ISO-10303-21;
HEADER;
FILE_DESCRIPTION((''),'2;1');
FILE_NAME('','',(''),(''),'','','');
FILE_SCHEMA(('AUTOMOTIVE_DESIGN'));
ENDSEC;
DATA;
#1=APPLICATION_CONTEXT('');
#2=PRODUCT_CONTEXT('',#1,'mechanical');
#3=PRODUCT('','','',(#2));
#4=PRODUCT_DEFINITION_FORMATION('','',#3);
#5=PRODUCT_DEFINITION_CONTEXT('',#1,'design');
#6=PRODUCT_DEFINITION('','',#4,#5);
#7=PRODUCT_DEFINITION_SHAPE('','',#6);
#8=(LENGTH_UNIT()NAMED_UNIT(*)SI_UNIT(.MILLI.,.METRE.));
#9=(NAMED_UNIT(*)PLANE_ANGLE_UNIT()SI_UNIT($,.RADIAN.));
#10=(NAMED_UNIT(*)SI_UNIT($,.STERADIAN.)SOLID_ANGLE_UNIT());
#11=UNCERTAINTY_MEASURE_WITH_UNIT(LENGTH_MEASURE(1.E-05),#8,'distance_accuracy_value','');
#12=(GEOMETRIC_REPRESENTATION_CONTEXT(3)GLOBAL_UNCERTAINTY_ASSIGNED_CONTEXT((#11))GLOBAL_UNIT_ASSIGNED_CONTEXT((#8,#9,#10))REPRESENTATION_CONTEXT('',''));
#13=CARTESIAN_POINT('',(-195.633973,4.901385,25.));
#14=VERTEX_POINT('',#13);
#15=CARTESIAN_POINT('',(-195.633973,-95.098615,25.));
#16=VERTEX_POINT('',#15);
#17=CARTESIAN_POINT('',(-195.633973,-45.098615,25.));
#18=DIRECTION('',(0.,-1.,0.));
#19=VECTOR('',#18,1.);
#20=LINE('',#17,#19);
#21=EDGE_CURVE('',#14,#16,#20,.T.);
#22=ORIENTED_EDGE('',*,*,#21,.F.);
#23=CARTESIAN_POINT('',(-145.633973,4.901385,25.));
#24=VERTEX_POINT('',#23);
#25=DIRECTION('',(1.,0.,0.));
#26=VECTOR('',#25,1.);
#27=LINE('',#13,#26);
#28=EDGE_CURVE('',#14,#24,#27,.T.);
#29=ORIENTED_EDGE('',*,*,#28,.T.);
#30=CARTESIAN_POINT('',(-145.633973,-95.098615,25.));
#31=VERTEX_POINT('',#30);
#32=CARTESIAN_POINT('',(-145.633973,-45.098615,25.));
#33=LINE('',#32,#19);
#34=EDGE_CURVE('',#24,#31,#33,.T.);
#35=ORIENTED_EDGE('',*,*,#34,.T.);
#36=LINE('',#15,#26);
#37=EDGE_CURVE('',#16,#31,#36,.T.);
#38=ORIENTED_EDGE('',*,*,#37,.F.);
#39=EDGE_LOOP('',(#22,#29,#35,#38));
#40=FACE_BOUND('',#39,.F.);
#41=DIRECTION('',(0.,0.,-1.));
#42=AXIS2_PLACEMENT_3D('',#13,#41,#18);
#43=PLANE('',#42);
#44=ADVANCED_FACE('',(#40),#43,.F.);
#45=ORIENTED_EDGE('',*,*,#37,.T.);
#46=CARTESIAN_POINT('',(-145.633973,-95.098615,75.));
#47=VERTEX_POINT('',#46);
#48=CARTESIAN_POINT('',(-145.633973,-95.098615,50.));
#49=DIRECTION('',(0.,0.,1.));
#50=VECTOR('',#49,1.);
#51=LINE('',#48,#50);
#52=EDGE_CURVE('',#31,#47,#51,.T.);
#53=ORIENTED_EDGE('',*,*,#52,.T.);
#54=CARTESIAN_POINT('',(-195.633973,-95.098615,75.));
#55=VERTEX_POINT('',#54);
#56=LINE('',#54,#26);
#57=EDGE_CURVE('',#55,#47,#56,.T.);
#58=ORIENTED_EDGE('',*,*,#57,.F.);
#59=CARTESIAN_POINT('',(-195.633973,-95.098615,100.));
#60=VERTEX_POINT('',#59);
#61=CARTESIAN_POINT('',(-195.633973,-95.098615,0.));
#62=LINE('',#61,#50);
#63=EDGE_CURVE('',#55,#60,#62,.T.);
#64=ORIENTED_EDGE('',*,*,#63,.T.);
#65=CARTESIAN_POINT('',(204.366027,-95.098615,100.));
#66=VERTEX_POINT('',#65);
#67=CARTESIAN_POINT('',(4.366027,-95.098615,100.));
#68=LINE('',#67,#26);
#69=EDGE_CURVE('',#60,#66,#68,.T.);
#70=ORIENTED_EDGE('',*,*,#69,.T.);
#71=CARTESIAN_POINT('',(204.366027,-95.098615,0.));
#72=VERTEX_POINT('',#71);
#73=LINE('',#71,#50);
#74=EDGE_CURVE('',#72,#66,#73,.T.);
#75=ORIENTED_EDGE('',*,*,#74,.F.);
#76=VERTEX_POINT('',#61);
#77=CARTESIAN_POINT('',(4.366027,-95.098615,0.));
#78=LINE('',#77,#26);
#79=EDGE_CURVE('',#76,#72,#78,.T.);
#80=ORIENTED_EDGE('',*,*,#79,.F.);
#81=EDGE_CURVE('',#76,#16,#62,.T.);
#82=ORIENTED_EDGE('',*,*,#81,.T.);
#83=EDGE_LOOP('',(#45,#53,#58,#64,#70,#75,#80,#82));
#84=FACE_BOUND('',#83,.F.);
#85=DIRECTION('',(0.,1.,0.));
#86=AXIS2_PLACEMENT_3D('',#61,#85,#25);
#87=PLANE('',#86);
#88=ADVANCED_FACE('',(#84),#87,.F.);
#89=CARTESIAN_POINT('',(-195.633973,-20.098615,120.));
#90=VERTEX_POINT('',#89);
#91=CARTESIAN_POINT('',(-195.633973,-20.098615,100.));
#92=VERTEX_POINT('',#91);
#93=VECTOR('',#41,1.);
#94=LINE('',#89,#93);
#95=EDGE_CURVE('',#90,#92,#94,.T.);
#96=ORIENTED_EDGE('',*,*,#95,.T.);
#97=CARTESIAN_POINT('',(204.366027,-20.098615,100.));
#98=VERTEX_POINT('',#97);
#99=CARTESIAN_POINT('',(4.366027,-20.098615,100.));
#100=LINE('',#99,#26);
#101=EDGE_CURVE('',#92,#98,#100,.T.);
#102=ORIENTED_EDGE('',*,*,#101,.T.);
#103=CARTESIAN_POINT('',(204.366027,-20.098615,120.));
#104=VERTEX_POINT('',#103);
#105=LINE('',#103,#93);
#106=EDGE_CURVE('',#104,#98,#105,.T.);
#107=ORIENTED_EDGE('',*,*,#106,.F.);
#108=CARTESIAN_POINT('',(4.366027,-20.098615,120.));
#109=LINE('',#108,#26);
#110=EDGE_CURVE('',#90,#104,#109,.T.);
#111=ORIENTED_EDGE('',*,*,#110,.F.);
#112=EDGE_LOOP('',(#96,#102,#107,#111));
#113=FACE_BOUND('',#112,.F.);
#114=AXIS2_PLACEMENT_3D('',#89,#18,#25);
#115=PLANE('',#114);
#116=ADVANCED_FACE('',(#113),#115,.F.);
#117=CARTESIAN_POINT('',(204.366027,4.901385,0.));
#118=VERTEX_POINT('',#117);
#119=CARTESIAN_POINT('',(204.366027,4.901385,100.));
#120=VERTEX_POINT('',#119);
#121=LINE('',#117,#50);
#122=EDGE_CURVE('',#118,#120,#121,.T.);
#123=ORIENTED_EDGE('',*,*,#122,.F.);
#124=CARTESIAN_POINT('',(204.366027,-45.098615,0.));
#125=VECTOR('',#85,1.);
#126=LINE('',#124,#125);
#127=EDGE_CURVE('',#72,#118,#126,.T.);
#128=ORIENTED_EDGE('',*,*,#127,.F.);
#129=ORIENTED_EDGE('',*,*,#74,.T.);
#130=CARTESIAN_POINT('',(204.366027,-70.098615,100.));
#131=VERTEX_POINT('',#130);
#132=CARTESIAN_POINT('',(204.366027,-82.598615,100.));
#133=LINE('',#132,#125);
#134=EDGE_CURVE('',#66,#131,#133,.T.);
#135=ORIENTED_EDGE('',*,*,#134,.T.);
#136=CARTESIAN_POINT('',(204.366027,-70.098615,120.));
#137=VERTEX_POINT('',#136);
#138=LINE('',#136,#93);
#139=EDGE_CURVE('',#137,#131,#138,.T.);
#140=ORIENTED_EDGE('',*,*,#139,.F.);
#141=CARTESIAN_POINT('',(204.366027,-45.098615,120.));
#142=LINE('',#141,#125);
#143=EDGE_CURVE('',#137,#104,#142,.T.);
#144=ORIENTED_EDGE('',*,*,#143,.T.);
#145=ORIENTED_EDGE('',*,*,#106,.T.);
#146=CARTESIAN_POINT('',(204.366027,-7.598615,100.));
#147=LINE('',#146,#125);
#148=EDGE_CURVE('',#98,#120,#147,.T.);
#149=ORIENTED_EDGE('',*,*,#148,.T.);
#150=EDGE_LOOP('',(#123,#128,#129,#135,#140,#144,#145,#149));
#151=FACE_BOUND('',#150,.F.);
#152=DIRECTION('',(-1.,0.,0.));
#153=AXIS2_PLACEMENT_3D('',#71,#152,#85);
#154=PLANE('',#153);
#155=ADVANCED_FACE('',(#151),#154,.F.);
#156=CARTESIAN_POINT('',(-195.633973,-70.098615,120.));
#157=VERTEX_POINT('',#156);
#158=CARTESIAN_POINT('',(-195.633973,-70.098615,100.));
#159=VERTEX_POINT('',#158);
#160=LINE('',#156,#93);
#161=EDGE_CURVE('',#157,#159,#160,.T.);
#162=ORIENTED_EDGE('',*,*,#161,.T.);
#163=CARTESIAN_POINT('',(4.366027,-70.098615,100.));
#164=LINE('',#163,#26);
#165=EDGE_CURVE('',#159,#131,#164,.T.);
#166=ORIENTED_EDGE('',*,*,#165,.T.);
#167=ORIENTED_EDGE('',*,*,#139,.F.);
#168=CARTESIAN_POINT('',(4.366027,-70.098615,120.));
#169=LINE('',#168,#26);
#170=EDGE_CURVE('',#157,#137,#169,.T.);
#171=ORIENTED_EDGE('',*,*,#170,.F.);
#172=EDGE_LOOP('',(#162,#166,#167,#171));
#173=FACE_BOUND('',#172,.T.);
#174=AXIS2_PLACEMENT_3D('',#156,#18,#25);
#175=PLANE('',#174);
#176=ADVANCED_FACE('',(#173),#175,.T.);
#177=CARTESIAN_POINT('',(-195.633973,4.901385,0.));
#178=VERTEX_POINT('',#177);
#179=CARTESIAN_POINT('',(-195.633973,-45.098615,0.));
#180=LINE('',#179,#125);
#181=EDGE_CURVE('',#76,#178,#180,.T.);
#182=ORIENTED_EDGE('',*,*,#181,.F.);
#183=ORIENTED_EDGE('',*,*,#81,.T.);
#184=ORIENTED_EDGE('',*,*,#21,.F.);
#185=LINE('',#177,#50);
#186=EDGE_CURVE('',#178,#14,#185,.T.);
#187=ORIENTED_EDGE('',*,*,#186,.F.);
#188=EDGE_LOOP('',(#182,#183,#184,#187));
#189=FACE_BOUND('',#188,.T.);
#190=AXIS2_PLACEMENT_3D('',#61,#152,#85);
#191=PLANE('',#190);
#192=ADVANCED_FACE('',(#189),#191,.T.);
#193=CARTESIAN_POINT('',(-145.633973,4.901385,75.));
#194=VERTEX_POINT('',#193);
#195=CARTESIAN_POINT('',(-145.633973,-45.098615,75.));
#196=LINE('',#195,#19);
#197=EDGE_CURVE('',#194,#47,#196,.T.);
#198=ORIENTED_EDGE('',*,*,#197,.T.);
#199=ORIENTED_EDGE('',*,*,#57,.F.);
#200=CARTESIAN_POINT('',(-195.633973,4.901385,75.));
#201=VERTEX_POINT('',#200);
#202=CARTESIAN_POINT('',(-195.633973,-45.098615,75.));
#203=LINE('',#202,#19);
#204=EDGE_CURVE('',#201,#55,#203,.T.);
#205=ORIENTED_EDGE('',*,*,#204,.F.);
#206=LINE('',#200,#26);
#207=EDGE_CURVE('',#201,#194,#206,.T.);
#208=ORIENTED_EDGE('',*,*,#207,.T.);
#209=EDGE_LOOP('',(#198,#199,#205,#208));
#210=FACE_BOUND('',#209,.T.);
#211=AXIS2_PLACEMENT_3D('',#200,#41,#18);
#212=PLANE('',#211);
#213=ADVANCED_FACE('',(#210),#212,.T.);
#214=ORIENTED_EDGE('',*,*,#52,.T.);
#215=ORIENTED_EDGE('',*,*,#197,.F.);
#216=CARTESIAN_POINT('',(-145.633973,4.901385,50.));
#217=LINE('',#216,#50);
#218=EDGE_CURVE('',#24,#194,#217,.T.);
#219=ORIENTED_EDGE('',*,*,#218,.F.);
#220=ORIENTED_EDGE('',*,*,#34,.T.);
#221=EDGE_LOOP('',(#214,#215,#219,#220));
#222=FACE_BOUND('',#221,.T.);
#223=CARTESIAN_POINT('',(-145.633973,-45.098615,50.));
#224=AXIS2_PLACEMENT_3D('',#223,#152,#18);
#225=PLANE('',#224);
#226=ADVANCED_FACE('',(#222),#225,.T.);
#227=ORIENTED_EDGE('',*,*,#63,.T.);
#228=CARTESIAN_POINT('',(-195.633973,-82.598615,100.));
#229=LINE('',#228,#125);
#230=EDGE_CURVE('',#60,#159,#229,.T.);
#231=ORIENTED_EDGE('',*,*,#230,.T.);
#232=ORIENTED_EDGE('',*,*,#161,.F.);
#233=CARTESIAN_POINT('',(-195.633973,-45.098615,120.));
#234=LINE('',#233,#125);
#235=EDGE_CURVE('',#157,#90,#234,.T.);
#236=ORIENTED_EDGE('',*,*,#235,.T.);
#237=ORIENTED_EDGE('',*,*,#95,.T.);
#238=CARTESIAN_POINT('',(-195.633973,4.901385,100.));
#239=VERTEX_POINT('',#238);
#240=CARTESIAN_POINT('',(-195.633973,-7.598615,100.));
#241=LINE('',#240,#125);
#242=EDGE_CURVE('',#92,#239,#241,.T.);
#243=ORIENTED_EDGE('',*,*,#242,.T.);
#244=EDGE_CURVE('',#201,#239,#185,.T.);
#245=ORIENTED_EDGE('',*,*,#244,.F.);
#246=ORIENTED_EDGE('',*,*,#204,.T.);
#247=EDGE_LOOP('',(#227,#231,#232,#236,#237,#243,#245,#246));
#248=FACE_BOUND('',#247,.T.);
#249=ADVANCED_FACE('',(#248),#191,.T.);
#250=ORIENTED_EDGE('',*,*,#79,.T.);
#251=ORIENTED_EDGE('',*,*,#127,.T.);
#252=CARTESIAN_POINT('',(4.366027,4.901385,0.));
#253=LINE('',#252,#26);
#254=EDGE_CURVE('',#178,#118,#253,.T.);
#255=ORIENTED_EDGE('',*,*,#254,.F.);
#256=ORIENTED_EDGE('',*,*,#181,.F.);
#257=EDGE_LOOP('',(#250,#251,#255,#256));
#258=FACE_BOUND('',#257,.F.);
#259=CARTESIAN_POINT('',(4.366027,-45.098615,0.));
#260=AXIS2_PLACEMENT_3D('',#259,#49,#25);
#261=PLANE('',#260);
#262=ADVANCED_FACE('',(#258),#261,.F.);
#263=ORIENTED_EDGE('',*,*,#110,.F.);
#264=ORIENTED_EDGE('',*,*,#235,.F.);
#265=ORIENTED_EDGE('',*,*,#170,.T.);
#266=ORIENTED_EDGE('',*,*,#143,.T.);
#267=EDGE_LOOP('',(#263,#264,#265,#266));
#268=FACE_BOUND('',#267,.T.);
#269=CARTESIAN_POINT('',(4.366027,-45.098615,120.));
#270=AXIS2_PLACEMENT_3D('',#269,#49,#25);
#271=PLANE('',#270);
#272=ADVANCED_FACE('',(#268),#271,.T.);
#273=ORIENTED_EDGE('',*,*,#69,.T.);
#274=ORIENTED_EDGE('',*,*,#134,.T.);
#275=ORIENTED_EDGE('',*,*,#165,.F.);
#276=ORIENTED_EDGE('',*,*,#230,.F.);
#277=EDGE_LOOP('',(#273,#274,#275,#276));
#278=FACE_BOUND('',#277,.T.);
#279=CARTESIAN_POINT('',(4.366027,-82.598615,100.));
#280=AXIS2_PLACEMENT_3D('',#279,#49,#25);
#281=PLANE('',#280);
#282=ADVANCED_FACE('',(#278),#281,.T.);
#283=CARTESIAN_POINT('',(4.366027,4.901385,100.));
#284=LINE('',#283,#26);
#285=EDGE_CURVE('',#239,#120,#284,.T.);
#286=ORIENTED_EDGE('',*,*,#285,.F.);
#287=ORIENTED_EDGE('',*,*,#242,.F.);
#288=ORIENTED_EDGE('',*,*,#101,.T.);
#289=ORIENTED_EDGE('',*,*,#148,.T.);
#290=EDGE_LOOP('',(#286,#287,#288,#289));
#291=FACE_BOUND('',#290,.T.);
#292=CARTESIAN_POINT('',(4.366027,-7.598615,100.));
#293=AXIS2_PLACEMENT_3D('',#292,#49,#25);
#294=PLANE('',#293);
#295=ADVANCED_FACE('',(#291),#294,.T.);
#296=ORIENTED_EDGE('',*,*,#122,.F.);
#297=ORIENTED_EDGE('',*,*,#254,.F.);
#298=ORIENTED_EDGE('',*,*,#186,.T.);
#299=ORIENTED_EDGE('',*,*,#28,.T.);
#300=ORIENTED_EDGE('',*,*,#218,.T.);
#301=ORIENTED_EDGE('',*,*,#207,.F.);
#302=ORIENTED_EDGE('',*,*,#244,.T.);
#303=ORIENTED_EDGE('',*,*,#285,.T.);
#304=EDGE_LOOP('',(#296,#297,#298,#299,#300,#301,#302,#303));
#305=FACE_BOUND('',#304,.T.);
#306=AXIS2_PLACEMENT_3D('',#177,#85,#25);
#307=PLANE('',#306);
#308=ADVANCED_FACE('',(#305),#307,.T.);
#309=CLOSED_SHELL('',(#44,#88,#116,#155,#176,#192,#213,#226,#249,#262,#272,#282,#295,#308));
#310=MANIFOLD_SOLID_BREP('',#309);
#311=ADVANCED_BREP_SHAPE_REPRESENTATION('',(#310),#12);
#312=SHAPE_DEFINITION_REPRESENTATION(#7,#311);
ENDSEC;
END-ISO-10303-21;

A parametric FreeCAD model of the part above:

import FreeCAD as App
import Part
import Sketcher
from FreeCAD import Vector
Q = App.Units.Quantity


def add_polygon(sketch, points):
    """Adds a closed chain of lines whose ends are joined by coincident constraints."""
    first, n = sketch.GeometryCount, len(points)
    for a, b in zip(points, points[1:] + points[:1]):
        sketch.addGeometry(Part.LineSegment(App.Vector(*a, 0), App.Vector(*b, 0)), False)
    for i in range(n):
        sketch.addConstraint(Sketcher.Constraint("Coincident", first + i, 2, first + (i + 1) % n, 1))

doc = App.newDocument("Part")
body = doc.addObject("PartDesign::Body", "Body")

# Sketch on XY plane
sketch1 = body.newObject("Sketcher::SketchObject", "Sketch")
sketch1.AttachmentSupport = (doc.getObject("XY_Plane"), [""])
sketch1.MapMode = "FlatFace"
add_polygon(sketch1, [(-196, 5), (-196, -95), (204, -95), (204, 5)])  # lines 0-3
sketch1.addConstraint([
    Sketcher.Constraint("Vertical", 0),
    Sketcher.Constraint("Horizontal", 1),
    Sketcher.Constraint("Vertical", 2),
    Sketcher.Constraint("Horizontal", 3),
    Sketcher.Constraint("DistanceX", 1, 1, 1, 2, Q("400 mm")),
    Sketcher.Constraint("DistanceY", 0, 2, 0, 1, Q("100 mm")),
    Sketcher.Constraint("DistanceX", 0, 2, -1, 1, Q("195.633973 mm")),
    Sketcher.Constraint("DistanceY", 0, 2, -1, 1, Q("95.098615 mm")),
])
pad1 = body.newObject("PartDesign::Pad", "Pad")
pad1.Profile = sketch1
pad1.Length = 120

# Sketch on XY plane
sketch2 = body.newObject("Sketcher::SketchObject", "Sketch001")
sketch2.AttachmentSupport = (doc.getObject("XY_Plane"), [""])
sketch2.MapMode = "FlatFace"
sketch2.AttachmentOffset = App.Placement(Vector(0, 0, 120), App.Rotation())
add_polygon(sketch2, [(-196, 5), (-196, -20), (204, -20), (204, 5)])  # lines 0-3
add_polygon(sketch2, [(-196, -70), (-196, -95), (204, -95), (204, -70)])  # lines 4-7
sketch2.addConstraint([
    Sketcher.Constraint("Vertical", 0),
    Sketcher.Constraint("Horizontal", 1),
    Sketcher.Constraint("Vertical", 2),
    Sketcher.Constraint("Horizontal", 3),
    Sketcher.Constraint("Vertical", 4),
    Sketcher.Constraint("Horizontal", 5),
    Sketcher.Constraint("Vertical", 6),
    Sketcher.Constraint("Horizontal", 7),
    Sketcher.Constraint("Vertical", 3, 2, 4, 2),
    Sketcher.Constraint("Vertical", 2, 2, 5, 2),
    Sketcher.Constraint("Equal", 2, 4),
    Sketcher.Constraint("DistanceX", 1, 1, 1, 2, Q("400 mm")),
    Sketcher.Constraint("DistanceY", 0, 2, 0, 1, Q("25 mm")),
    Sketcher.Constraint("DistanceY", 4, 2, 0, 2, Q("75 mm")),
    Sketcher.Constraint("DistanceX", 0, 2, -1, 1, Q("195.633973 mm")),
    Sketcher.Constraint("DistanceY", 0, 2, -1, 1, Q("20.098615 mm")),
])
pocket1 = body.newObject("PartDesign::Pocket", "Pocket")
pocket1.Profile = sketch2
pocket1.Length = 20

# Sketch on YZ plane
sketch3 = body.newObject("Sketcher::SketchObject", "Sketch002")
sketch3.AttachmentSupport = (doc.getObject("YZ_Plane"), [""])
sketch3.MapMode = "FlatFace"
sketch3.AttachmentOffset = App.Placement(Vector(0, 0, -195.633973), App.Rotation())
add_polygon(sketch3, [(5, 75), (5, 25), (-95, 25), (-95, 75)])  # lines 0-3
sketch3.addConstraint([
    Sketcher.Constraint("Vertical", 0),
    Sketcher.Constraint("Horizontal", 1),
    Sketcher.Constraint("Vertical", 2),
    Sketcher.Constraint("Horizontal", 3),
    Sketcher.Constraint("DistanceX", 1, 2, 1, 1, Q("100 mm")),
    Sketcher.Constraint("DistanceY", 0, 2, 0, 1, Q("50 mm")),
    Sketcher.Constraint("DistanceY", -1, 1, 0, 2, Q("25 mm")),
    Sketcher.Constraint("DistanceX", -1, 1, 0, 2, Q("4.901385 mm")),
])
pocket2 = body.newObject("PartDesign::Pocket", "Pocket001")
pocket2.Profile = sketch3
pocket2.Length = 50
pocket2.Reversed = True

doc.recompute()
